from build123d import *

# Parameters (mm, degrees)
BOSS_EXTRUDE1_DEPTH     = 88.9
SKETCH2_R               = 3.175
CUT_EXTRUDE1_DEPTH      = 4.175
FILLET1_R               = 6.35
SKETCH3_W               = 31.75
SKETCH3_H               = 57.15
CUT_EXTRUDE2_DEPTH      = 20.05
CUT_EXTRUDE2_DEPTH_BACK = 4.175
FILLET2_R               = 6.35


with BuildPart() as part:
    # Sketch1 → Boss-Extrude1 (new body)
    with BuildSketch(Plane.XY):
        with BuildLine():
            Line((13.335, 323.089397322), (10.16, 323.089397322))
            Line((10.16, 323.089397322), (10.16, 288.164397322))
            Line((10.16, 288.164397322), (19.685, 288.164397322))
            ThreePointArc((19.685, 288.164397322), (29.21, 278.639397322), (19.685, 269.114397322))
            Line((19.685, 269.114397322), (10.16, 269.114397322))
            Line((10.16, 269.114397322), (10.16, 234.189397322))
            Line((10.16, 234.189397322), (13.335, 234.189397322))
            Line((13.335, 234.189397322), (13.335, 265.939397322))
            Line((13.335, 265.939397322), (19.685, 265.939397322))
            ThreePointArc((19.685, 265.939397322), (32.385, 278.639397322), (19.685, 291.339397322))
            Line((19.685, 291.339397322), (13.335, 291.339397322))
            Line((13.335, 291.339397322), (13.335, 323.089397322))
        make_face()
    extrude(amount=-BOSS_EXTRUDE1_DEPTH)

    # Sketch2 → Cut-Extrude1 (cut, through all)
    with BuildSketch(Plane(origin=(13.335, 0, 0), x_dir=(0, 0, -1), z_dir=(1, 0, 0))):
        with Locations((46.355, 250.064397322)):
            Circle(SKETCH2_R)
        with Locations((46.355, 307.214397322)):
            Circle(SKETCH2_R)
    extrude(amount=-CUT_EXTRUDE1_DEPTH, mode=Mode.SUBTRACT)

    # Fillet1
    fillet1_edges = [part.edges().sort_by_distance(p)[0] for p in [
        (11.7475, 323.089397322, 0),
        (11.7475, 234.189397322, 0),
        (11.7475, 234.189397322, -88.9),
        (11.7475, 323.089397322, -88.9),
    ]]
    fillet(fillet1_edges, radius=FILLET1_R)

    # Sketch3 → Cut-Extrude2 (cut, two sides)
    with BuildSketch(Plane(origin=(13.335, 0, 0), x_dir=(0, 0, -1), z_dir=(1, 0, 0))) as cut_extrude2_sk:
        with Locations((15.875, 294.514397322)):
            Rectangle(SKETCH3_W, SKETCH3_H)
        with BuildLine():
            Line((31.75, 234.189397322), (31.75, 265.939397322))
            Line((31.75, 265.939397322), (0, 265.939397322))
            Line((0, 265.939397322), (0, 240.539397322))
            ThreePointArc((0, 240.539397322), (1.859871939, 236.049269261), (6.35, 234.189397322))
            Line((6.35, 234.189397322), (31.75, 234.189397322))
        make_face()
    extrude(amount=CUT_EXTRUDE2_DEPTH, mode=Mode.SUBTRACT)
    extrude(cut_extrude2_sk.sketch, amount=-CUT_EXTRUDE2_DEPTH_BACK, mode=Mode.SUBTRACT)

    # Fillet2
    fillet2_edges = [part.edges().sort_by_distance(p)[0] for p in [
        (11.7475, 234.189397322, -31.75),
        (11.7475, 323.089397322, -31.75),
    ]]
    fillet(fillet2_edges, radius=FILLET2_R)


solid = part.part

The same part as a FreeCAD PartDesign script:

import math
import FreeCAD as App
import Part
import Sketcher

V = App.Vector
Q = App.Units.Quantity


def edges_at(feature, points):
    """Names of the edges that pass closest to the given points."""
    edges = feature.Shape.Edges
    near = lambda p: min(range(len(edges)), key=lambda i: edges[i].distToShape(Part.Vertex(*p))[0])
    return sorted({f"Edge{near(p) + 1}" for p in points})

doc = App.newDocument("Part")
body = doc.addObject("PartDesign::Body", "Body")

# Sketch on XY plane
sketch1 = doc.addObject("Sketcher::SketchObject", "Sketch")
body.addObject(sketch1)
sketch1.AttachmentSupport = (doc.XY_Plane, [""])
sketch1.MapMode = "FlatFace"
sketch1.addGeometry([
    Part.LineSegment(V(13.335, 323.089397, 0), V(10.16, 323.089397, 0)),  # 0
    Part.LineSegment(V(10.16, 323.089397, 0), V(10.16, 288.164397, 0)),  # 1
    Part.LineSegment(V(10.16, 288.164397, 0), V(19.685, 288.164397, 0)),  # 2
    Part.ArcOfCircle(Part.Circle(V(19.685, 278.639397, 0), V(0, 0, 1), 9.525), math.radians(-90), math.radians(90)),  # 3
    Part.LineSegment(V(19.685, 269.114397, 0), V(10.16, 269.114397, 0)),  # 4
    Part.LineSegment(V(10.16, 269.114397, 0), V(10.16, 234.189397, 0)),  # 5
    Part.LineSegment(V(10.16, 234.189397, 0), V(13.335, 234.189397, 0)),  # 6
    Part.LineSegment(V(13.335, 234.189397, 0), V(13.335, 265.939397, 0)),  # 7
    Part.LineSegment(V(13.335, 265.939397, 0), V(19.685, 265.939397, 0)),  # 8
    Part.ArcOfCircle(Part.Circle(V(19.685, 278.639397, 0), V(0, 0, 1), 12.7), math.radians(-90), math.radians(90)),  # 9
    Part.LineSegment(V(19.685, 291.339397, 0), V(13.335, 291.339397, 0)),  # 10
    Part.LineSegment(V(13.335, 291.339397, 0), V(13.335, 323.089397, 0)),  # 11
], False)
sketch1.addConstraint([
    Sketcher.Constraint("Coincident", 0, 2, 1, 1),
    Sketcher.Constraint("Coincident", 1, 2, 2, 1),
    Sketcher.Constraint("Tangent", 2, 2, 3, 2),
    Sketcher.Constraint("Tangent", 3, 1, 4, 1),
    Sketcher.Constraint("Coincident", 4, 2, 5, 1),
    Sketcher.Constraint("Coincident", 5, 2, 6, 1),
    Sketcher.Constraint("Coincident", 6, 2, 7, 1),
    Sketcher.Constraint("Coincident", 7, 2, 8, 1),
    Sketcher.Constraint("Tangent", 8, 2, 9, 1),
    Sketcher.Constraint("Tangent", 9, 2, 10, 1),
    Sketcher.Constraint("Coincident", 10, 2, 11, 1),
    Sketcher.Constraint("Coincident", 11, 2, 0, 1),
    Sketcher.Constraint("Horizontal", 0),
    Sketcher.Constraint("Vertical", 1),
    Sketcher.Constraint("Horizontal", 2),
    Sketcher.Constraint("Horizontal", 4),
    Sketcher.Constraint("Vertical", 5),
    Sketcher.Constraint("Horizontal", 6),
    Sketcher.Constraint("Vertical", 7),
    Sketcher.Constraint("Horizontal", 8),
    Sketcher.Constraint("Horizontal", 10),
    Sketcher.Constraint("Vertical", 11),
    Sketcher.Constraint("Coincident", 9, 3, 3, 3),
    Sketcher.Constraint("Vertical", 1, 2, 4, 2),
    Sketcher.Constraint("Vertical", 7, 2, 10, 2),
    Sketcher.Constraint("Equal", 1, 5),
    Sketcher.Constraint("Radius", 9, Q("0.5 in")),
    Sketcher.Constraint("Radius", 3, Q("0.375 in")),
    Sketcher.Constraint("DistanceX", 8, 1, 8, 2, Q("0.25 in")),
    Sketcher.Constraint("DistanceY", 7, 1, 7, 2, Q("1.25 in")),
    Sketcher.Constraint("DistanceX", -1, 1, 0, 2, Q("0.4 in")),
    Sketcher.Constraint("DistanceX", 0, 2, 0, 1, Q("0.125 in")),
    Sketcher.Constraint("DistanceY", -1, 1, 3, 3, 278.639397),
])
pad1 = doc.addObject("PartDesign::Pad", "Pad")
body.addObject(pad1)
pad1.Profile = sketch1
pad1.Length = Q("3.5 in")
pad1.Reversed = True

# Sketch on YZ plane
sketch2 = doc.addObject("Sketcher::SketchObject", "Sketch001")
body.addObject(sketch2)
sketch2.AttachmentSupport = (doc.YZ_Plane, [""])
sketch2.MapMode = "FlatFace"
sketch2.AttachmentOffset = App.Placement(V(0, 0, 0.525 * 25.4), App.Rotation())
sketch2.addGeometry([
    Part.Circle(V(250.064397, -46.355, 0), V(0, 0, 1), 3.175),
    Part.Circle(V(307.214397, -46.355, 0), V(0, 0, 1), 3.175),
], False)
sketch2.addConstraint([
    Sketcher.Constraint("Equal", 0, 1),
    Sketcher.Constraint("Horizontal", 0, 3, 1, 3),
    Sketcher.Constraint("Diameter", 0, Q("0.25 in")),
    Sketcher.Constraint("DistanceX", 0, 3, 1, 3, Q("2.25 in")),
    Sketcher.Constraint("DistanceY", 0, 3, -1, 1, Q("1.825 in")),
    Sketcher.Constraint("DistanceX", -1, 1, 0, 3, 250.064397),
])
pocket1 = doc.addObject("PartDesign::Pocket", "Pocket")
body.addObject(pocket1)
pocket1.Profile = sketch2
pocket1.Type = "ThroughAll"
doc.recompute()

fillet = doc.addObject("PartDesign::Fillet", "Fillet")
body.addObject(fillet)
fillet.Base = (pocket1, edges_at(pocket1, [
    (11.748, 323.089, 0),
    (11.748, 234.189, 0),
    (11.748, 234.189, -88.9),
    (11.748, 323.089, -88.9),
]))
fillet.Radius = Q("0.25 in")

# Sketch on YZ plane
sketch3 = doc.addObject("Sketcher::SketchObject", "Sketch002")
body.addObject(sketch3)
sketch3.AttachmentSupport = (doc.YZ_Plane, [""])
sketch3.MapMode = "FlatFace"
sketch3.AttachmentOffset = App.Placement(V(0, 0, 0.525 * 25.4), App.Rotation())
sketch3.addGeometry([
    Part.LineSegment(V(323.089397, 0, 0), V(240.539397, 0, 0)),  # 0
    Part.ArcOfCircle(Part.Circle(V(240.539397, -6.35, 0), V(0, 0, 1), 6.35), math.radians(90), math.radians(180)),  # 1
    Part.LineSegment(V(234.189397, -6.35, 0), V(234.189397, -31.75, 0)),  # 2
    Part.LineSegment(V(234.189397, -31.75, 0), V(323.089397, -31.75, 0)),  # 3
    Part.LineSegment(V(323.089397, -31.75, 0), V(323.089397, 0, 0)),  # 4
], False)
sketch3.addConstraint([
    Sketcher.Constraint("Tangent", 0, 2, 1, 1),
    Sketcher.Constraint("Tangent", 1, 2, 2, 1),
    Sketcher.Constraint("Coincident", 2, 2, 3, 1),
    Sketcher.Constraint("Coincident", 3, 2, 4, 1),
    Sketcher.Constraint("Coincident", 4, 2, 0, 1),
    Sketcher.Constraint("Horizontal", 0),
    Sketcher.Constraint("Vertical", 2),
    Sketcher.Constraint("Horizontal", 3),
    Sketcher.Constraint("Vertical", 4),
    Sketcher.Constraint("PointOnObject", 0, 2, -1),
    Sketcher.Constraint("DistanceY", 2, 2, 2, 1, Q("1 in")),
    Sketcher.Constraint("Radius", 1, Q("0.25 in")),
    Sketcher.Constraint("DistanceX", 3, 1, 3, 2, Q("3.5 in")),
    Sketcher.Constraint("DistanceX", -1, 1, 1, 3, 240.539397),
])
pocket2 = doc.addObject("PartDesign::Pocket", "Pocket001")
body.addObject(pocket2)
pocket2.Profile = sketch3
pocket2.Type = "ThroughAll"
pocket2.Midplane = True
doc.recompute()

fillet2 = doc.addObject("PartDesign::Fillet", "Fillet001")
body.addObject(fillet2)
fillet2.Base = (pocket2, edges_at(pocket2, [(11.748, 234.189, -31.75), (11.748, 323.089, -31.75)]))
fillet2.Radius = Q("0.25 in")

doc.recompute()
